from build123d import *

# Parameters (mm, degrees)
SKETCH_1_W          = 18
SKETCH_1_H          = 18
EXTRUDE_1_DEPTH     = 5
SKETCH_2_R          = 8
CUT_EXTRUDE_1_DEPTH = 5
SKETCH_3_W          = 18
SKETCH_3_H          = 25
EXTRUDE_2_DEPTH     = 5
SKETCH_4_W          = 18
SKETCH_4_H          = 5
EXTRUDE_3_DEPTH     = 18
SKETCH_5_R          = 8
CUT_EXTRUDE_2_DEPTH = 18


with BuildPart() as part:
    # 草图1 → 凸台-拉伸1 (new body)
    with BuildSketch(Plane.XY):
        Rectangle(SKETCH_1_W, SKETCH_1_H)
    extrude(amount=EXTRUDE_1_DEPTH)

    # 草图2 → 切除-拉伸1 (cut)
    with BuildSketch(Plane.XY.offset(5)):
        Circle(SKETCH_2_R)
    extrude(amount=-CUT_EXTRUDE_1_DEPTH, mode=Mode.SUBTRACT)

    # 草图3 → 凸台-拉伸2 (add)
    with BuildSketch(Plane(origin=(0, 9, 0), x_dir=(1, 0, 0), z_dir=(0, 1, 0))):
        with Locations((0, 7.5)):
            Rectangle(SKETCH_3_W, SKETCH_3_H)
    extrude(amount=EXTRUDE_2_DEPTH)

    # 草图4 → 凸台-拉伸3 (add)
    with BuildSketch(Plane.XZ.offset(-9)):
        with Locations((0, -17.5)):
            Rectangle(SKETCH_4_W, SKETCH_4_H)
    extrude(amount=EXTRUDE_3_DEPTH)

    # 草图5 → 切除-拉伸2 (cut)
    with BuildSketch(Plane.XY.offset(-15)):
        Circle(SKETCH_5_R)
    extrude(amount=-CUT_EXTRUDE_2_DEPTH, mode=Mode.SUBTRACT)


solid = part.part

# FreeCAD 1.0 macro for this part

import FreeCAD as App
import Part
import Sketcher
Q = App.Units.Quantity

doc = App.newDocument("Part")
body = doc.addObject("PartDesign::Body", "Body")

# Sketch on XY plane
sketch1 = body.newObject("Sketcher::SketchObject", "Sketch")
sketch1.AttachmentSupport = (doc.getObject("XY_Plane"), [""])
sketch1.MapMode = "FlatFace"
sketch1.addGeometry(Part.LineSegment(App.Vector(-9, 9, 0), App.Vector(-9, -9, 0)), False)
sketch1.addGeometry(Part.LineSegment(App.Vector(-9, -9, 0), App.Vector(9, -9, 0)), False)
sketch1.addGeometry(Part.LineSegment(App.Vector(9, -9, 0), App.Vector(9, 9, 0)), False)
sketch1.addGeometry(Part.LineSegment(App.Vector(9, 9, 0), App.Vector(-9, 9, 0)), False)
sketch1.addConstraint(Sketcher.Constraint("Coincident", 0, 2, 1, 1))
sketch1.addConstraint(Sketcher.Constraint("Coincident", 1, 2, 2, 1))
sketch1.addConstraint(Sketcher.Constraint("Coincident", 2, 2, 3, 1))
sketch1.addConstraint(Sketcher.Constraint("Coincident", 3, 2, 0, 1))
sketch1.addConstraint(Sketcher.Constraint("Vertical", 0))
sketch1.addConstraint(Sketcher.Constraint("Horizontal", 1))
sketch1.addConstraint(Sketcher.Constraint("Vertical", 2))
sketch1.addConstraint(Sketcher.Constraint("Horizontal", 3))
sketch1.addConstraint(Sketcher.Constraint("Symmetric", 0, 2, 2, 2, -1, 1))
sketch1.addConstraint(Sketcher.Constraint("Equal", 3, 0))
sketch1.addConstraint(Sketcher.Constraint("DistanceX", 1, 1, 1, 2, Q("18 mm")))
pad1 = body.newObject("PartDesign::Pad", "Pad")
pad1.Profile = sketch1
pad1.Length = 5

# Sketch on XY plane
sketch2 = body.newObject("Sketcher::SketchObject", "Sketch001")
sketch2.AttachmentSupport = (doc.getObject("XY_Plane"), [""])
sketch2.MapMode = "FlatFace"
sketch2.AttachmentOffset = App.Placement(App.Vector(0, 0, 5), App.Rotation())
sketch2.addGeometry(Part.Circle(App.Vector(0, 0, 0), App.Vector(0, 0, 1), 8), False)
sketch2.addConstraint(Sketcher.Constraint("Coincident", 0, 3, -1, 1))
sketch2.addConstraint(Sketcher.Constraint("Diameter", 0, Q("16 mm")))
pocket1 = body.newObject("PartDesign::Pocket", "Pocket")
pocket1.Profile = sketch2
pocket1.Length = 5

# Sketch on XZ plane
sketch3 = body.newObject("Sketcher::SketchObject", "Sketch002")
sketch3.AttachmentSupport = (doc.getObject("XZ_Plane"), [""])
sketch3.MapMode = "FlatFace"
sketch3.AttachmentOffset = App.Placement(App.Vector(0, 0, -9), App.Rotation())
sketch3.addGeometry(Part.LineSegment(App.Vector(-9, -20, 0), App.Vector(-9, 5, 0)), False)
sketch3.addGeometry(Part.LineSegment(App.Vector(-9, 5, 0), App.Vector(9, 5, 0)), False)
sketch3.addGeometry(Part.LineSegment(App.Vector(9, 5, 0), App.Vector(9, -20, 0)), False)
sketch3.addGeometry(Part.LineSegment(App.Vector(9, -20, 0), App.Vector(-9, -20, 0)), False)
sketch3.addConstraint(Sketcher.Constraint("Coincident", 0, 2, 1, 1))
sketch3.addConstraint(Sketcher.Constraint("Coincident", 1, 2, 2, 1))
sketch3.addConstraint(Sketcher.Constraint("Coincident", 2, 2, 3, 1))
sketch3.addConstraint(Sketcher.Constraint("Coincident", 3, 2, 0, 1))
sketch3.addConstraint(Sketcher.Constraint("Vertical", 0))
sketch3.addConstraint(Sketcher.Constraint("Horizontal", 1))
sketch3.addConstraint(Sketcher.Constraint("Vertical", 2))
sketch3.addConstraint(Sketcher.Constraint("Horizontal", 3))
sketch3.addConstraint(Sketcher.Constraint("DistanceX", 1, 1, 1, 2, Q("18 mm")))
sketch3.addConstraint(Sketcher.Constraint("DistanceY", 0, 1, 0, 2, Q("25 mm")))
sketch3.addConstraint(Sketcher.Constraint("DistanceX", 0, 2, -1, 1, Q("9 mm")))
sketch3.addConstraint(Sketcher.Constraint("DistanceY", -1, 1, 0, 2, Q("5 mm")))
pad2 = body.newObject("PartDesign::Pad", "Pad001")
pad2.Profile = sketch3
pad2.Length = 5
pad2.Reversed = True

# Sketch on XZ plane
sketch4 = body.newObject("Sketcher::SketchObject", "Sketch003")
sketch4.AttachmentSupport = (doc.getObject("XZ_Plane"), [""])
sketch4.MapMode = "FlatFace"
sketch4.AttachmentOffset = App.Placement(App.Vector(0, 0, -9), App.Rotation())
sketch4.addGeometry(Part.LineSegment(App.Vector(-9, -15, 0), App.Vector(-9, -20, 0)), False)
sketch4.addGeometry(Part.LineSegment(App.Vector(-9, -20, 0), App.Vector(9, -20, 0)), False)
sketch4.addGeometry(Part.LineSegment(App.Vector(9, -20, 0), App.Vector(9, -15, 0)), False)
sketch4.addGeometry(Part.LineSegment(App.Vector(9, -15, 0), App.Vector(-9, -15, 0)), False)
sketch4.addConstraint(Sketcher.Constraint("Coincident", 0, 2, 1, 1))
sketch4.addConstraint(Sketcher.Constraint("Coincident", 1, 2, 2, 1))
sketch4.addConstraint(Sketcher.Constraint("Coincident", 2, 2, 3, 1))
sketch4.addConstraint(Sketcher.Constraint("Coincident", 3, 2, 0, 1))
sketch4.addConstraint(Sketcher.Constraint("Vertical", 0))
sketch4.addConstraint(Sketcher.Constraint("Horizontal", 1))
sketch4.addConstraint(Sketcher.Constraint("Vertical", 2))
sketch4.addConstraint(Sketcher.Constraint("Horizontal", 3))
sketch4.addConstraint(Sketcher.Constraint("DistanceX", 1, 1, 1, 2, Q("18 mm")))
sketch4.addConstraint(Sketcher.Constraint("DistanceY", 0, 2, 0, 1, Q("5 mm")))
sketch4.addConstraint(Sketcher.Constraint("DistanceX", 0, 2, -1, 1, Q("9 mm")))
sketch4.addConstraint(Sketcher.Constraint("DistanceY", 0, 2, -1, 1, Q("20 mm")))
pad3 = body.newObject("PartDesign::Pad", "Pad002")
pad3.Profile = sketch4
pad3.Length = 18

# Sketch on XY plane
sketch5 = body.newObject("Sketcher::SketchObject", "Sketch004")
sketch5.AttachmentSupport = (doc.getObject("XY_Plane"), [""])
sketch5.MapMode = "FlatFace"
sketch5.AttachmentOffset = App.Placement(App.Vector(0, 0, -15), App.Rotation())
sketch5.addGeometry(Part.Circle(App.Vector(0, 0, 0), App.Vector(0, 0, 1), 8), False)
sketch5.addConstraint(Sketcher.Constraint("Coincident", 0, 3, -1, 1))
sketch5.addConstraint(Sketcher.Constraint("Diameter", 0, Q("16 mm")))
pocket2 = body.newObject("PartDesign::Pocket", "Pocket001")
pocket2.Profile = sketch5
pocket2.Length = 18

doc.recompute()
